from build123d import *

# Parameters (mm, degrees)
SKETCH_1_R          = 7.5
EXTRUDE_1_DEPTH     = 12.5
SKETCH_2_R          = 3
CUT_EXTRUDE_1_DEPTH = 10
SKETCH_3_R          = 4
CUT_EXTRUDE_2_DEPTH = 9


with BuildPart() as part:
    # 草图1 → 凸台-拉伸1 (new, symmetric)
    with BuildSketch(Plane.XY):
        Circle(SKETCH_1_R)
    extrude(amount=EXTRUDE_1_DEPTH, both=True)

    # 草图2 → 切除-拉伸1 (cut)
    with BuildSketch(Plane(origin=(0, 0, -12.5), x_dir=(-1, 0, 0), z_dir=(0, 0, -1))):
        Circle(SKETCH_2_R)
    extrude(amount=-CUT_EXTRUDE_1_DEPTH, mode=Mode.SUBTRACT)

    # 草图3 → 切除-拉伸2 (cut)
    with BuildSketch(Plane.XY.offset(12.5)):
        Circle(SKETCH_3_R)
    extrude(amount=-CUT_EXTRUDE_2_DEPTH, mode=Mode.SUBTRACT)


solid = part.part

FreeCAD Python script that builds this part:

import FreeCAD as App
import Part
import Sketcher

doc = App.newDocument("Part")
body = doc.addObject("PartDesign::Body", "Body")

sketch1 = body.newObject("Sketcher::SketchObject", "Sketch")
sketch1.AttachmentSupport = (doc.getObject("XY_Plane"), [""])
sketch1.MapMode = "FlatFace"
sketch1.addGeometry(Part.Circle(App.Vector(0, 0, 0), App.Vector(0, 0, 1), 8), False)
sketch1.addConstraint([
    Sketcher.Constraint("Coincident", 0, 3, -1, 1),
    Sketcher.Constraint("Diameter", 0, 15.0),
])
pad1 = body.newObject("PartDesign::Pad", "Pad")
pad1.Profile = sketch1
pad1.Length = 25
pad1.Midplane = True

sketch2 = body.newObject("Sketcher::SketchObject", "Sketch001")
sketch2.AttachmentSupport = (doc.getObject("XY_Plane"), [""])
sketch2.MapMode = "FlatFace"
sketch2.AttachmentOffset = App.Placement(App.Vector(0, 0, -12.5), App.Rotation())
sketch2.addGeometry(Part.Circle(App.Vector(0, 0, 0), App.Vector(0, 0, 1), 3), False)
sketch2.addConstraint([
    Sketcher.Constraint("Coincident", 0, 3, -1, 1),
    Sketcher.Constraint("Diameter", 0, 6.0),
])
pocket1 = body.newObject("PartDesign::Pocket", "Pocket")
pocket1.Profile = sketch2
pocket1.Length = 10
pocket1.Reversed = True

sketch3 = body.newObject("Sketcher::SketchObject", "Sketch002")
sketch3.AttachmentSupport = (doc.getObject("XY_Plane"), [""])
sketch3.MapMode = "FlatFace"
sketch3.AttachmentOffset = App.Placement(App.Vector(0, 0, 12.5), App.Rotation())
sketch3.addGeometry(Part.Circle(App.Vector(0, 0, 0), App.Vector(0, 0, 1), 4), False)
sketch3.addConstraint([
    Sketcher.Constraint("Coincident", 0, 3, -1, 1),
    Sketcher.Constraint("Diameter", 0, 8.0),
])
pocket2 = body.newObject("PartDesign::Pocket", "Pocket001")
pocket2.Profile = sketch3
pocket2.Length = 9

doc.recompute()
